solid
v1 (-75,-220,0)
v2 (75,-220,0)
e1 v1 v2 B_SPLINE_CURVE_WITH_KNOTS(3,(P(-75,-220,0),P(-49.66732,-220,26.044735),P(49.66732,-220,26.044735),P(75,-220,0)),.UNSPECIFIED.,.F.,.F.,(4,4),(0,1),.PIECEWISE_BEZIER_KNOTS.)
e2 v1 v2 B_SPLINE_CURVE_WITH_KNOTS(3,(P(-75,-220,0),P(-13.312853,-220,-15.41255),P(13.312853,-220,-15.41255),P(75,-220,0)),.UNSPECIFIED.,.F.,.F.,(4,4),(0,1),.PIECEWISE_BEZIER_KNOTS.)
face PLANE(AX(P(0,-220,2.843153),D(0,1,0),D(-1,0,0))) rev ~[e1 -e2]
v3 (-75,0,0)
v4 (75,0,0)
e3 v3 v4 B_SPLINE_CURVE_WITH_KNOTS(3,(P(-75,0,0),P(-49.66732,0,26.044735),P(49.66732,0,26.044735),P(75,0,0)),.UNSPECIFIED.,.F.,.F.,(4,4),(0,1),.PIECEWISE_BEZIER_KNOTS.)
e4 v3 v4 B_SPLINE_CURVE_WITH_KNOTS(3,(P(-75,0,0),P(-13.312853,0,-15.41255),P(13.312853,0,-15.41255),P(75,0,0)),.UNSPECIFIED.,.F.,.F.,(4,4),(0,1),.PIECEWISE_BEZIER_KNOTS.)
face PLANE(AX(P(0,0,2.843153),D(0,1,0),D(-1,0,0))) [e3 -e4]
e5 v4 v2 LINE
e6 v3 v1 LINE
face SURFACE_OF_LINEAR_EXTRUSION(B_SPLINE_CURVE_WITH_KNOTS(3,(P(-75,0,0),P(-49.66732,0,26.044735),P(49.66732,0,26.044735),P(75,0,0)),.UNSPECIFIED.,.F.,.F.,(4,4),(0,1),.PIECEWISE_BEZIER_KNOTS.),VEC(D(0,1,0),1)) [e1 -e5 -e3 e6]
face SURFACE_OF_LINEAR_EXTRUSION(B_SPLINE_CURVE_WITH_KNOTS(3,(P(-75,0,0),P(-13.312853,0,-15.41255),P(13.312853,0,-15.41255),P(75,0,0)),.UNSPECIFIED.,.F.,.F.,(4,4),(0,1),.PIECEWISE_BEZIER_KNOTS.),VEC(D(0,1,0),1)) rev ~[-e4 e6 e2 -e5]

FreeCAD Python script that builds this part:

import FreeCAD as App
import Part
import Sketcher

doc = App.newDocument("Part")
body = doc.addObject("PartDesign::Body", "Body")

# Sketch on XZ plane
sketch1 = body.newObject("Sketcher::SketchObject", "Sketch")
sketch1.AttachmentSupport = (doc.getObject("XZ_Plane"), [""])
sketch1.MapMode = "FlatFace"
sketch1.addGeometry(Part.BSplineCurve([App.Vector(-75, 0, 0), App.Vector(-49.66732, 26.044735, 0), App.Vector(49.66732, 26.044735, 0), App.Vector(75, 0, 0)], [4, 4], [0, 1], False, 3, [1, 1, 1, 1], False), False)
sketch1.addGeometry(Part.BSplineCurve([App.Vector(-75, 0, 0), App.Vector(-13.312853, -15.41255, 0), App.Vector(13.312853, -15.41255, 0), App.Vector(75, 0, 0)], [4, 4], [0, 1], False, 3, [1, 1, 1, 1], False), False)
sketch1.addConstraint(Sketcher.Constraint("Block", 0))
sketch1.addConstraint(Sketcher.Constraint("Block", 1))
pad1 = body.newObject("PartDesign::Pad", "Pad")
pad1.Profile = sketch1
pad1.Length = 220

doc.recompute()
